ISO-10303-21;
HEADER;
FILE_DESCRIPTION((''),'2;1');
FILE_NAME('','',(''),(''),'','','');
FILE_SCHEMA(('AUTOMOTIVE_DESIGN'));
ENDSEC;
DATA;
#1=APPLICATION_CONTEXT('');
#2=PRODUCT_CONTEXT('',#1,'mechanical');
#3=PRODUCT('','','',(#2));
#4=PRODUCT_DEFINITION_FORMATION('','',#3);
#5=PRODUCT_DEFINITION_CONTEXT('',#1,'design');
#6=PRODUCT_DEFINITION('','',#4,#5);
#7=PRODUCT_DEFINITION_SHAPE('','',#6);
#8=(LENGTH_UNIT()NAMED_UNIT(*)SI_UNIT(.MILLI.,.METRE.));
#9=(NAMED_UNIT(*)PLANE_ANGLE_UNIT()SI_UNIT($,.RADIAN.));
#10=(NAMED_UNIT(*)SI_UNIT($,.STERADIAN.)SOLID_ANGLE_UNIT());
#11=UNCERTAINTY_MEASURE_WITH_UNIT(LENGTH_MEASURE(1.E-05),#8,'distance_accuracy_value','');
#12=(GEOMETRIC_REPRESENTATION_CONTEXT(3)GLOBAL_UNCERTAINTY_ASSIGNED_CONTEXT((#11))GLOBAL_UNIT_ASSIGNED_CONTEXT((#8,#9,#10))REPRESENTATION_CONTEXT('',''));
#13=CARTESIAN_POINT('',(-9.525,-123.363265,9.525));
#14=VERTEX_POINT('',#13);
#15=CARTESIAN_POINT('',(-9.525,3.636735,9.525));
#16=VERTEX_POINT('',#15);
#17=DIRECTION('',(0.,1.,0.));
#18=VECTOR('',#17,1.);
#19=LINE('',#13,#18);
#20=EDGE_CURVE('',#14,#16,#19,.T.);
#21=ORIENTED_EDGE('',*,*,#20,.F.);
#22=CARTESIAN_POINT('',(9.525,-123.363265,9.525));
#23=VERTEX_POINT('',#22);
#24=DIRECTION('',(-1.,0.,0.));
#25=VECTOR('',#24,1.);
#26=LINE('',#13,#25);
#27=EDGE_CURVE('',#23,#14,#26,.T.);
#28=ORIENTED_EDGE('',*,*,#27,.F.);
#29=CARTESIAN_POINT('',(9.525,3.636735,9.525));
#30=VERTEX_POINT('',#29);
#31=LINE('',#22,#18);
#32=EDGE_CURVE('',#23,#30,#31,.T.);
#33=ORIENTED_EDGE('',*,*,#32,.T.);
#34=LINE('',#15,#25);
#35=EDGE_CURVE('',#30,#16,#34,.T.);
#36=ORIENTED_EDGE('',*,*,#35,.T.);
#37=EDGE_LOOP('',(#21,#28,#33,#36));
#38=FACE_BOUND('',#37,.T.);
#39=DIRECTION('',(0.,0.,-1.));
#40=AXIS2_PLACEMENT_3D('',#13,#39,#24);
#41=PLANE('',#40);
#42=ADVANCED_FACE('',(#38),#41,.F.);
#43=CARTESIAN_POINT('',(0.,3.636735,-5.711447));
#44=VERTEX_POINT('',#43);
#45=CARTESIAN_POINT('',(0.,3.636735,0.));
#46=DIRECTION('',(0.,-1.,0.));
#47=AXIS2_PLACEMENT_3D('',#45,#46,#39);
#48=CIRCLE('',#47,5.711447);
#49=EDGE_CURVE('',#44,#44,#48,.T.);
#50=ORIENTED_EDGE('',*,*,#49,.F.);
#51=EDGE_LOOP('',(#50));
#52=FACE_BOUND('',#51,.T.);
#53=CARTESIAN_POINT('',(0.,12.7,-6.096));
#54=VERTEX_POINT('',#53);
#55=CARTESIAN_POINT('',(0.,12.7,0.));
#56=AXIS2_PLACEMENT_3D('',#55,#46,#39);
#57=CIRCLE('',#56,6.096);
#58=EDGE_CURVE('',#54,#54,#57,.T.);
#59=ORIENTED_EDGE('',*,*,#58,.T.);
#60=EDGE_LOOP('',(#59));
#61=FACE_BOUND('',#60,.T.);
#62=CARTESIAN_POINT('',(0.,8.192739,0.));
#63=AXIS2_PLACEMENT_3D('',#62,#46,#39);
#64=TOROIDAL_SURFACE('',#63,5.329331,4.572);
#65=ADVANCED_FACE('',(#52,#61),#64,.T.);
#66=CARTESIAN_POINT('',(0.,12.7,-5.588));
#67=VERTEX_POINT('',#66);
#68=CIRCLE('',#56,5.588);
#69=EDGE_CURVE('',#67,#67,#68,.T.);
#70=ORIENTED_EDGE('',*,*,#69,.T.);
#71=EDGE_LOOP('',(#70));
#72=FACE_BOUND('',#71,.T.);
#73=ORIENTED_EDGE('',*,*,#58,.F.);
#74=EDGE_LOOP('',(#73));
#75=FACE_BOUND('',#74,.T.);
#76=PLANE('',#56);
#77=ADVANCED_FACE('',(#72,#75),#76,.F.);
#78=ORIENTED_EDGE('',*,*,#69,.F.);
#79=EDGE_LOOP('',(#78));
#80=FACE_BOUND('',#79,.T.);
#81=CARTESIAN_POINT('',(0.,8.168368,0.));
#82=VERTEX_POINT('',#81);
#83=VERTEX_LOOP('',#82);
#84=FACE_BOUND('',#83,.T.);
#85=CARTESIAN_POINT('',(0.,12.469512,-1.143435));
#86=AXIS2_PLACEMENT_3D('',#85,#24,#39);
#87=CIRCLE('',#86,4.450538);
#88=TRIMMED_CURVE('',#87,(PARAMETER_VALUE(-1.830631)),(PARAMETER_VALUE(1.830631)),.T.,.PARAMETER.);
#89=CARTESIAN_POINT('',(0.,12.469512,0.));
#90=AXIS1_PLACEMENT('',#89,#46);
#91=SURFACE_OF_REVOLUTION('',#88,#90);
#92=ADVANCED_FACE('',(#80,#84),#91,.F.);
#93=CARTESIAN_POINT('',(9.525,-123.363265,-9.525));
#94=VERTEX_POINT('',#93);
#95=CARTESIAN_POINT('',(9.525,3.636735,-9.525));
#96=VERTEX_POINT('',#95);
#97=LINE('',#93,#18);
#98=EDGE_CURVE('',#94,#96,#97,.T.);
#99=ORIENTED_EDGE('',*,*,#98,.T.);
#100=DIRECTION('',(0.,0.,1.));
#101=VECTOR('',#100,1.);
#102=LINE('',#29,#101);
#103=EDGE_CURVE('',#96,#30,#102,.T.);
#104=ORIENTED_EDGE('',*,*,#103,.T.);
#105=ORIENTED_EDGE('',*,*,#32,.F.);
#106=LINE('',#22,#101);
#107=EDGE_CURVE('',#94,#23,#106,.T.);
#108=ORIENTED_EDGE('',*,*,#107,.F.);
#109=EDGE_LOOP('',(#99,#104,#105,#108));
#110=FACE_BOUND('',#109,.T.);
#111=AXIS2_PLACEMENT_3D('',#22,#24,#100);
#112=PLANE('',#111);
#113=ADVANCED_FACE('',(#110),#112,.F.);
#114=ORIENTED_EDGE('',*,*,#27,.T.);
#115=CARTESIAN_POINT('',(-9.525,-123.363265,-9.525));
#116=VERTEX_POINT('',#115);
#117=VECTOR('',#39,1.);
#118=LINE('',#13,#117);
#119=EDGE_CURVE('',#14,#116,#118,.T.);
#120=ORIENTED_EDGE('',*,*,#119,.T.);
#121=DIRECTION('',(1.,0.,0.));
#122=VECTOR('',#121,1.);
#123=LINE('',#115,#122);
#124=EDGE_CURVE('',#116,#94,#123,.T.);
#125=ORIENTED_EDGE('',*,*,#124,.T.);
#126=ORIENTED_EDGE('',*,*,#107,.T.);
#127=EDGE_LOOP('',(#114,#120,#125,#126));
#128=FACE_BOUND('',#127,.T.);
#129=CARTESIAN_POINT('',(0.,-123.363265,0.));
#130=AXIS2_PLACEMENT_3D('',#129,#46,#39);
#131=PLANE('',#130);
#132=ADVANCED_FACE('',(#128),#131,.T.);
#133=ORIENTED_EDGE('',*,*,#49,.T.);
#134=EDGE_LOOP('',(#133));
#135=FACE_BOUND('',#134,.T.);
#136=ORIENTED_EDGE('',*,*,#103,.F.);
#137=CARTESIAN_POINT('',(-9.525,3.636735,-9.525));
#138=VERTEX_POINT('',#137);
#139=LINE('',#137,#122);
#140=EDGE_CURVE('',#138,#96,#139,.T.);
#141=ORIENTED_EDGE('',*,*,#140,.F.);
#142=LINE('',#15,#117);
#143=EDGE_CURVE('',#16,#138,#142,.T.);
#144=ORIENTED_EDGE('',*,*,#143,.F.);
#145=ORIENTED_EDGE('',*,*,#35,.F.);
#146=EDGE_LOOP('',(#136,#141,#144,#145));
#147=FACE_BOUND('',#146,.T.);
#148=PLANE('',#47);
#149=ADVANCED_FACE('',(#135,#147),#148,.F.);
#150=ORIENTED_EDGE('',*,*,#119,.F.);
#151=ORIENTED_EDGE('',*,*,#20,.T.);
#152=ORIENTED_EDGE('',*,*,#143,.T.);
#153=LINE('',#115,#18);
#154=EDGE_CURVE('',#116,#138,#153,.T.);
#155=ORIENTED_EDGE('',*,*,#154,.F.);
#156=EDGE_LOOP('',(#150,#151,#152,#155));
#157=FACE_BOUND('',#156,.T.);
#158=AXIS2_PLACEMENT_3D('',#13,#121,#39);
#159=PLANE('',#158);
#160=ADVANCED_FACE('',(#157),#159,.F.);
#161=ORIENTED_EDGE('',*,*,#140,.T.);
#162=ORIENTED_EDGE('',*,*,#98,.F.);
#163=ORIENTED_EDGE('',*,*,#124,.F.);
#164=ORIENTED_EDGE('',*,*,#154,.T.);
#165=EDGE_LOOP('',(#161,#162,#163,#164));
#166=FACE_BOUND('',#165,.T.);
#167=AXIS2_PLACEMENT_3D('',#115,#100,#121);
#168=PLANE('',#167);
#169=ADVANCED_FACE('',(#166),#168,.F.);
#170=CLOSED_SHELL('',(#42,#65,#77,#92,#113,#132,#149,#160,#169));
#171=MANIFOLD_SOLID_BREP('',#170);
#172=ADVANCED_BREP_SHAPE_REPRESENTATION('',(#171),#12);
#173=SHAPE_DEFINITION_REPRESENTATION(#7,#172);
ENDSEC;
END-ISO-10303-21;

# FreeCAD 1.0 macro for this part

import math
import FreeCAD as App
import Part
import Sketcher

V = App.Vector
Q = App.Units.Quantity

doc = App.newDocument("Part")
body = doc.addObject("PartDesign::Body", "Body")

# Sketch on XY plane
sketch1 = body.newObject("Sketcher::SketchObject", "Sketch")
sketch1.AttachmentSupport = (doc.getObject("XY_Plane"), [""])
sketch1.MapMode = "FlatFace"
sketch1.addGeometry(Part.LineSegment(V(0, 8.2, 0), V(0, 3.6, 0)), False)
sketch1.addGeometry(Part.LineSegment(V(0, 3.6, 0), V(4.9, 3.6, 0)), False)
sketch1.addGeometry(Part.ArcOfCircle(Part.Circle(V(5.3, 8.2, 0), V(0, 0, 1), 4.6), math.radians(-95), math.radians(80)), False)
sketch1.addGeometry(Part.LineSegment(V(6.1, 12.7, 0), V(5.6, 12.7, 0)), False)
sketch1.addGeometry(Part.ArcOfCircle(Part.Circle(V(1.1, 12.5, 0), V(0, 0, 1), 4.5), math.radians(-105), math.radians(3)), False)
sketch1.addConstraint(Sketcher.Constraint("Coincident", 0, 2, 1, 1))
sketch1.addConstraint(Sketcher.Constraint("Coincident", 1, 2, 2, 1))
sketch1.addConstraint(Sketcher.Constraint("Coincident", 2, 2, 3, 1))
sketch1.addConstraint(Sketcher.Constraint("Coincident", 3, 2, 4, 2))
sketch1.addConstraint(Sketcher.Constraint("Coincident", 4, 1, 0, 1))
sketch1.addConstraint(Sketcher.Constraint("Vertical", 0))
sketch1.addConstraint(Sketcher.Constraint("Horizontal", 1))
sketch1.addConstraint(Sketcher.Constraint("Horizontal", 3))
sketch1.addConstraint(Sketcher.Constraint("PointOnObject", 0, 2, -2))
sketch1.addConstraint(Sketcher.Constraint("Radius", 2, Q("0.18 in")))
sketch1.addConstraint(Sketcher.Constraint("DistanceX", 3, 2, 3, 1, Q("0.02 in")))
sketch1.addConstraint(Sketcher.Constraint("DistanceY", -1, 1, 2, 2, Q("0.5 in")))
sketch1.addConstraint(Sketcher.Constraint("DistanceX", -1, 1, 2, 2, Q("0.24 in")))
sketch1.addConstraint(Sketcher.Constraint("Radius", 4, 4.450538))
sketch1.addConstraint(Sketcher.Constraint("DistanceX", 1, 1, 1, 2, 4.947215))
sketch1.addConstraint(Sketcher.Constraint("DistanceY", 0, 2, 0, 1, 4.531632))
sketch1.addConstraint(Sketcher.Constraint("DistanceX", -1, 1, 2, 3, 5.329331))
revolution = body.newObject("PartDesign::Revolution", "Revolution")
revolution.Profile = sketch1
revolution.ReferenceAxis = (sketch1, ["V_Axis"])
revolution.Angle = 360

# Sketch on XZ plane
sketch2 = body.newObject("Sketcher::SketchObject", "Sketch001")
sketch2.AttachmentSupport = (doc.getObject("XZ_Plane"), [""])
sketch2.MapMode = "FlatFace"
sketch2.AttachmentOffset = App.Placement(V(0, 0, -3.636735), App.Rotation())
sketch2.addGeometry(Part.LineSegment(V(-10, 10, 0), V(-10, -10, 0)), False)
sketch2.addGeometry(Part.LineSegment(V(-10, -10, 0), V(10, -10, 0)), False)
sketch2.addGeometry(Part.LineSegment(V(10, -10, 0), V(10, 10, 0)), False)
sketch2.addGeometry(Part.LineSegment(V(10, 10, 0), V(-10, 10, 0)), False)
sketch2.addConstraint(Sketcher.Constraint("Coincident", 0, 2, 1, 1))
sketch2.addConstraint(Sketcher.Constraint("Coincident", 1, 2, 2, 1))
sketch2.addConstraint(Sketcher.Constraint("Coincident", 2, 2, 3, 1))
sketch2.addConstraint(Sketcher.Constraint("Coincident", 3, 2, 0, 1))
sketch2.addConstraint(Sketcher.Constraint("Vertical", 0))
sketch2.addConstraint(Sketcher.Constraint("Horizontal", 1))
sketch2.addConstraint(Sketcher.Constraint("Vertical", 2))
sketch2.addConstraint(Sketcher.Constraint("Horizontal", 3))
sketch2.addConstraint(Sketcher.Constraint("Symmetric", 0, 2, 2, 2, -1, 1))
sketch2.addConstraint(Sketcher.Constraint("Equal", 3, 0))
sketch2.addConstraint(Sketcher.Constraint("DistanceX", 1, 1, 1, 2, Q("0.75 in")))
pad1 = body.newObject("PartDesign::Pad", "Pad")
pad1.Profile = sketch2
pad1.Length = Q("5 in")

doc.recompute()
